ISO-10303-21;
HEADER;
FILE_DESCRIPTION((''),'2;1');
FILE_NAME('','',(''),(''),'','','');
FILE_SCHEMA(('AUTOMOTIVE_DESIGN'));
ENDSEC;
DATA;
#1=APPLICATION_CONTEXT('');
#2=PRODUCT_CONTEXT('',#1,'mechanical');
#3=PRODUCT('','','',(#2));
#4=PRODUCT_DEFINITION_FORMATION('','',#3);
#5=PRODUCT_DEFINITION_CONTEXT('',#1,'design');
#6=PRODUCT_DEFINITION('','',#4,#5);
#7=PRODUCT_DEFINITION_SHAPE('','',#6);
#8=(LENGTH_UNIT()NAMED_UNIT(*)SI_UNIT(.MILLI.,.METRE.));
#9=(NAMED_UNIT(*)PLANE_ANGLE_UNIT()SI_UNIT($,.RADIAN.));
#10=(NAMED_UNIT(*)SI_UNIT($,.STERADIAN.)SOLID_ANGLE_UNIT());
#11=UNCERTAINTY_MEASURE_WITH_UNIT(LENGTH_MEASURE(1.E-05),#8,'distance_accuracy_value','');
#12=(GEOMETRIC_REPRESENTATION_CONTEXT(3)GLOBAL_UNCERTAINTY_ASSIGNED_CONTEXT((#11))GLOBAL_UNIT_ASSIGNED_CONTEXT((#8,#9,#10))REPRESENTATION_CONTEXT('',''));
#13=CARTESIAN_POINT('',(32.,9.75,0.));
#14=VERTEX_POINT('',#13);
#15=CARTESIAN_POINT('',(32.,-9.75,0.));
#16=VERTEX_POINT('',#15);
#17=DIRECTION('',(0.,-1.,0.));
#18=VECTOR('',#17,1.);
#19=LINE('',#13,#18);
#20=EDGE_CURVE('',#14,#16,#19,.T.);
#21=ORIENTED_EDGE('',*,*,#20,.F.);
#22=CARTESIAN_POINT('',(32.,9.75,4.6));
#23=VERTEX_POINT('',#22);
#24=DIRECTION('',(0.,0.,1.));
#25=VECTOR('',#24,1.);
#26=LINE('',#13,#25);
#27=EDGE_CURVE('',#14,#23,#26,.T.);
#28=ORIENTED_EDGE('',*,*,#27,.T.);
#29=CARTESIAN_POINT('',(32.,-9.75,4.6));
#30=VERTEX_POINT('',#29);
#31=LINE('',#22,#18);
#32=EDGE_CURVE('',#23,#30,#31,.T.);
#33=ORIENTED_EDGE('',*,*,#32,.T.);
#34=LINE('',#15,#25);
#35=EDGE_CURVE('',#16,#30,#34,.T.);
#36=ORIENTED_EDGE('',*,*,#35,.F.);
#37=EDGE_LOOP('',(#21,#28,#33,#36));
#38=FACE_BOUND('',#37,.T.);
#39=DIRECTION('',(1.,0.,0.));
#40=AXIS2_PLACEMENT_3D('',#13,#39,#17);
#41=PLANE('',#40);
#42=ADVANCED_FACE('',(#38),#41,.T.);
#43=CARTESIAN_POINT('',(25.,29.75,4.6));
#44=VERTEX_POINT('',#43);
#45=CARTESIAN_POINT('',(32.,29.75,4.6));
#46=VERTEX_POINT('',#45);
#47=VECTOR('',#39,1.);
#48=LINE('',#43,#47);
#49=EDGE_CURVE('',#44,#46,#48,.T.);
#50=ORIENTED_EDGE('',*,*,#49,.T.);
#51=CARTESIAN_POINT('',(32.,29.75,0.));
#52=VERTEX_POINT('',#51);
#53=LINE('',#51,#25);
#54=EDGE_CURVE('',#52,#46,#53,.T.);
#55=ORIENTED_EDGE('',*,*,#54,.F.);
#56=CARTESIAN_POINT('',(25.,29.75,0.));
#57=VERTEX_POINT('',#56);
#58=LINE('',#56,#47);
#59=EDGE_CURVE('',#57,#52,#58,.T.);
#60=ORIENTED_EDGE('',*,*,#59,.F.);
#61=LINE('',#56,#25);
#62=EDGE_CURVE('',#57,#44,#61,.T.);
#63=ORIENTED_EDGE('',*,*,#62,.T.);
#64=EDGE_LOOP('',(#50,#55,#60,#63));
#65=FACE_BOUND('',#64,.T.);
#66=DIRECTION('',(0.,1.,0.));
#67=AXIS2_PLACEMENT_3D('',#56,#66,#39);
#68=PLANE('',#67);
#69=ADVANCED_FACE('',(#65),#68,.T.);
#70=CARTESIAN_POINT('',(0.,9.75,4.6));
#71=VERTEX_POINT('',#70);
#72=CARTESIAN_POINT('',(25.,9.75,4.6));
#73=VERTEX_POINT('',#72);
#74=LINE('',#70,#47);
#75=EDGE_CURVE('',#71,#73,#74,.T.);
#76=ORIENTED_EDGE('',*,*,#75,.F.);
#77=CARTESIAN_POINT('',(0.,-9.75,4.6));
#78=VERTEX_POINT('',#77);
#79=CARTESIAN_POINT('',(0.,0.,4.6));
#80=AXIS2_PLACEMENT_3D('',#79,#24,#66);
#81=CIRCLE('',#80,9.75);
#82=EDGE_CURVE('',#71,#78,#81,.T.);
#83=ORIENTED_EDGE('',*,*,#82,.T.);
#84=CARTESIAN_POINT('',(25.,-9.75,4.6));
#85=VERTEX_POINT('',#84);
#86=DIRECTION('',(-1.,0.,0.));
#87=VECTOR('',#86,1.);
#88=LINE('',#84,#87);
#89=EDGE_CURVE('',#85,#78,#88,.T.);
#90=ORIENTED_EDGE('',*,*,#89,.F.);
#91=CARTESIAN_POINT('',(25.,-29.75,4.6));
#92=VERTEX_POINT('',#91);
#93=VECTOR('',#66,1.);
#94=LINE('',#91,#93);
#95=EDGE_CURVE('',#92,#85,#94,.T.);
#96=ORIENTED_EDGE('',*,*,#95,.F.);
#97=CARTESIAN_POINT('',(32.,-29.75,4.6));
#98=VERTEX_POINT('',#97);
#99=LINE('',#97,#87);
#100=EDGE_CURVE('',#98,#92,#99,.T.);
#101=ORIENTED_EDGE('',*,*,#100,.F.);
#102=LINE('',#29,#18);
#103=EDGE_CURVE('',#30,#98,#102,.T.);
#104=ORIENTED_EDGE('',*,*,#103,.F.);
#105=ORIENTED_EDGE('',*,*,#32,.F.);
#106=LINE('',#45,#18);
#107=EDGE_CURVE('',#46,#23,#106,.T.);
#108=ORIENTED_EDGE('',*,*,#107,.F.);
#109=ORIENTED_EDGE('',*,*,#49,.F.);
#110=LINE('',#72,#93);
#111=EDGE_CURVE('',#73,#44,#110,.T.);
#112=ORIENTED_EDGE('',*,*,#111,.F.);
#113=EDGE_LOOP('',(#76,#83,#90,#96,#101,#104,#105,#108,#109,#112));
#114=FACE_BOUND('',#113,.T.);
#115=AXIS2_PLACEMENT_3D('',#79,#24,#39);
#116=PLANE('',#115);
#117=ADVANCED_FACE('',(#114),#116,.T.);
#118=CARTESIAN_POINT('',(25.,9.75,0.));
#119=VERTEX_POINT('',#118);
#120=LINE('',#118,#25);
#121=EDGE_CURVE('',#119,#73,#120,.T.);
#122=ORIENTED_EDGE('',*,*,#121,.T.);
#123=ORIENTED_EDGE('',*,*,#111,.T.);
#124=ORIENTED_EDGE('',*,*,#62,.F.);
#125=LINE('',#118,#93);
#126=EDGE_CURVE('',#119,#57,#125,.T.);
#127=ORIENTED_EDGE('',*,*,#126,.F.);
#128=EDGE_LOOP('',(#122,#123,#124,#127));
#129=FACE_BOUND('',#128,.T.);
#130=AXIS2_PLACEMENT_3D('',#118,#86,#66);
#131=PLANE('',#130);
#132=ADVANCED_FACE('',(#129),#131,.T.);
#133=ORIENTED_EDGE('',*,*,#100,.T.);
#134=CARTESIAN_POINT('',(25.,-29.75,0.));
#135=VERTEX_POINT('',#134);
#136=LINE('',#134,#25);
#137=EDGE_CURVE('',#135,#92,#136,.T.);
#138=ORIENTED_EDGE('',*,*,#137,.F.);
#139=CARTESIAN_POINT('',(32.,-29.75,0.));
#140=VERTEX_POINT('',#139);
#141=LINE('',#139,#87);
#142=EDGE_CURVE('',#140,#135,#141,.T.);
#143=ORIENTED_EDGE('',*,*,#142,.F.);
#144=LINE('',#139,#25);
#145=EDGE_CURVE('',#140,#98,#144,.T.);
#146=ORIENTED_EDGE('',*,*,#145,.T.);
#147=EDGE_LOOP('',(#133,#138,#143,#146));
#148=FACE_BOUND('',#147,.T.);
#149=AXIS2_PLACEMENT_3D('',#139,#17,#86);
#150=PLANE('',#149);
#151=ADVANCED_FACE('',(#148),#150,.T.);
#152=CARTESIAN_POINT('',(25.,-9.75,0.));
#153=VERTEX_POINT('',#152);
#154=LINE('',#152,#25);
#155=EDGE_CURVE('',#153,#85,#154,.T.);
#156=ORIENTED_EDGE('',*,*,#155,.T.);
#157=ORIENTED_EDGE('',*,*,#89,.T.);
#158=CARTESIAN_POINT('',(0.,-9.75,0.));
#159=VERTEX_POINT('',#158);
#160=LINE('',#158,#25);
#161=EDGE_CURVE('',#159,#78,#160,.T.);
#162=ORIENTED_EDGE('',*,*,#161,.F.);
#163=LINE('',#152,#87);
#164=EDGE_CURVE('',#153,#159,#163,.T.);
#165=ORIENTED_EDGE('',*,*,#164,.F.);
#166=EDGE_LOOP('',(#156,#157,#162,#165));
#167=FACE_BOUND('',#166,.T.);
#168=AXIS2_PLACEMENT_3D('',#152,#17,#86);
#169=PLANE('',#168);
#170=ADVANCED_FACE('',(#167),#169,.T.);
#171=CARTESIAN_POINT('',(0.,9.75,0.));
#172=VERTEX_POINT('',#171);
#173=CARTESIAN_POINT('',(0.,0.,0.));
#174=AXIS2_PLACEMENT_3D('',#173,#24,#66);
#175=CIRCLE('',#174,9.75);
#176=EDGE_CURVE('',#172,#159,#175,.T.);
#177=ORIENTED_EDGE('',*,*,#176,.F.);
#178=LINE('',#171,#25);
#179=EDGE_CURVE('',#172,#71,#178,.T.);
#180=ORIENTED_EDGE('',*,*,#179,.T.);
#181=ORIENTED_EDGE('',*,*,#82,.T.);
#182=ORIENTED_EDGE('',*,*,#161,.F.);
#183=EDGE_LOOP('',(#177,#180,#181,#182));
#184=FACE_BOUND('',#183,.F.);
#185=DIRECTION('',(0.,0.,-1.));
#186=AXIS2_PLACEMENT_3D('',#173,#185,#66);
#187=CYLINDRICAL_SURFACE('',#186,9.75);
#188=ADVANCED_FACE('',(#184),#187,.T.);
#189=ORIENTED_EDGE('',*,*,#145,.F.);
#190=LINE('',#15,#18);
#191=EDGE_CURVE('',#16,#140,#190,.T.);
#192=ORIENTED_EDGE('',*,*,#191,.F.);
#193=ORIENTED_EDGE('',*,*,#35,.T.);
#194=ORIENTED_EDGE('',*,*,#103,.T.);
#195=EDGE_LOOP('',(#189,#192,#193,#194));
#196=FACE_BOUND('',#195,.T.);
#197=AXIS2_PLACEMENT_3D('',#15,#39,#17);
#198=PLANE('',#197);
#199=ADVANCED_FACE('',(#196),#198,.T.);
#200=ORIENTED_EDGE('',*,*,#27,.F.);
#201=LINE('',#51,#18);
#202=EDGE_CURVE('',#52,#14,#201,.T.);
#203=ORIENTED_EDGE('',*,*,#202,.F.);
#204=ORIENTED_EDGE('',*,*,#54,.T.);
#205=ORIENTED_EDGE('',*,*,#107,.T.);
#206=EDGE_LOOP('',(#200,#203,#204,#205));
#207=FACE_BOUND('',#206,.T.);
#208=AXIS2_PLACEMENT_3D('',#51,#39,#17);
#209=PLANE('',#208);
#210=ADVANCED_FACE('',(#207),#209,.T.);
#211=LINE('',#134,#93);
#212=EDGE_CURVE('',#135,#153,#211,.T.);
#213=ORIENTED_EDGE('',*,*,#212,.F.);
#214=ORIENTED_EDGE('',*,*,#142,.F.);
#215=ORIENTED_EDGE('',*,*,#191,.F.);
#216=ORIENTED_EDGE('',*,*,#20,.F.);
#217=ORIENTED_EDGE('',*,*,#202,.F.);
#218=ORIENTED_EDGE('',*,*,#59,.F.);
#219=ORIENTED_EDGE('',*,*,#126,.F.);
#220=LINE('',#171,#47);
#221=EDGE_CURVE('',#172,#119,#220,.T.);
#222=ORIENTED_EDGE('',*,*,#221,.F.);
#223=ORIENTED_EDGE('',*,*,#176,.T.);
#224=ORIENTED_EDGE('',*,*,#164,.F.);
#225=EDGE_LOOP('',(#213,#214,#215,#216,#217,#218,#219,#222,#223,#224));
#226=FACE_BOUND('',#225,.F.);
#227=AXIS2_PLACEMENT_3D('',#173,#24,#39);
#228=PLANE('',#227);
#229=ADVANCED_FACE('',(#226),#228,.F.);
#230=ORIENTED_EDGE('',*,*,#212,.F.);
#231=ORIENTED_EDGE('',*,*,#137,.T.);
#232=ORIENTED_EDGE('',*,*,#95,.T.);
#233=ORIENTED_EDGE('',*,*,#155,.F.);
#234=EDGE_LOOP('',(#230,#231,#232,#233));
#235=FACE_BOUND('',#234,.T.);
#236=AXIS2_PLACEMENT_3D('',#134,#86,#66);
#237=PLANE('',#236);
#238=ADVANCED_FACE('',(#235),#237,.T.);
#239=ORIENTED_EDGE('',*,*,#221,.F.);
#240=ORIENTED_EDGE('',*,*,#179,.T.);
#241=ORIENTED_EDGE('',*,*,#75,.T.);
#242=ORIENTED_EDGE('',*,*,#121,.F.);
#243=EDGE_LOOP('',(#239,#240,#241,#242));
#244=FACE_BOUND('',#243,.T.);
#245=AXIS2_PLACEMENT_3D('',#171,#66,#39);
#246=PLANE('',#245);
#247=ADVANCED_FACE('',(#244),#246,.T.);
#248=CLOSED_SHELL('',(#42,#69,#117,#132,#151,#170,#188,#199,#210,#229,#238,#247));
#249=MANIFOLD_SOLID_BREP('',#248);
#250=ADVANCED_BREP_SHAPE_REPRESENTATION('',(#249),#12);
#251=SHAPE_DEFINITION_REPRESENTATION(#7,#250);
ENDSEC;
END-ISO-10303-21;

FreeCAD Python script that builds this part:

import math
import FreeCAD as App
import Part
import Sketcher

V = App.Vector

doc = App.newDocument("Part")
body = doc.addObject("PartDesign::Body", "Body")

sketch1 = body.newObject("Sketcher::SketchObject", "Sketch")
sketch1.AttachmentSupport = (doc.getObject("XY_Plane"), [""])
sketch1.MapMode = "FlatFace"
sketch1.addGeometry([
    Part.LineSegment(V(25, 10, 0), V(0, 10, 0)),
    Part.ArcOfCircle(Part.Circle(V(0, 0, 0), V(0, 0, 1), 10), math.radians(90), math.radians(270)),
    Part.LineSegment(V(0, -10, 0), V(25, -10, 0)),
    Part.LineSegment(V(25, -10, 0), V(25, -30, 0)),
    Part.LineSegment(V(25, -30, 0), V(32, -30, 0)),
    Part.LineSegment(V(32, -30, 0), V(32, 30, 0)),
    Part.LineSegment(V(32, 30, 0), V(25, 30, 0)),
    Part.LineSegment(V(25, 30, 0), V(25, 10, 0)),
], False)
sketch1.addConstraint([
    Sketcher.Constraint("Tangent", 0, 2, 1, 1),
    Sketcher.Constraint("Tangent", 1, 2, 2, 1),
    Sketcher.Constraint("Coincident", 2, 2, 3, 1),
    Sketcher.Constraint("Coincident", 3, 2, 4, 1),
    Sketcher.Constraint("Coincident", 4, 2, 5, 1),
    Sketcher.Constraint("Coincident", 5, 2, 6, 1),
    Sketcher.Constraint("Coincident", 6, 2, 7, 1),
    Sketcher.Constraint("Coincident", 7, 2, 0, 1),
    Sketcher.Constraint("Horizontal", 0),
    Sketcher.Constraint("Horizontal", 2),
    Sketcher.Constraint("Vertical", 3),
    Sketcher.Constraint("Horizontal", 4),
    Sketcher.Constraint("Vertical", 5),
    Sketcher.Constraint("Horizontal", 6),
    Sketcher.Constraint("Vertical", 7),
    Sketcher.Constraint("Coincident", 1, 3, -1, 1),
    Sketcher.Constraint("Symmetric", 3, 2, 6, 2, -1),
    Sketcher.Constraint("DistanceX", 0, 2, 0, 1, 25.0),
    Sketcher.Constraint("DistanceX", 4, 1, 4, 2, 7.0),
    Sketcher.Constraint("DistanceY", 3, 2, 3, 1, 20.0),
    Sketcher.Constraint("Radius", 1, 9.75),
])
pad1 = body.newObject("PartDesign::Pad", "Pad")
pad1.Profile = sketch1
pad1.Length = 4.6

doc.recompute()
